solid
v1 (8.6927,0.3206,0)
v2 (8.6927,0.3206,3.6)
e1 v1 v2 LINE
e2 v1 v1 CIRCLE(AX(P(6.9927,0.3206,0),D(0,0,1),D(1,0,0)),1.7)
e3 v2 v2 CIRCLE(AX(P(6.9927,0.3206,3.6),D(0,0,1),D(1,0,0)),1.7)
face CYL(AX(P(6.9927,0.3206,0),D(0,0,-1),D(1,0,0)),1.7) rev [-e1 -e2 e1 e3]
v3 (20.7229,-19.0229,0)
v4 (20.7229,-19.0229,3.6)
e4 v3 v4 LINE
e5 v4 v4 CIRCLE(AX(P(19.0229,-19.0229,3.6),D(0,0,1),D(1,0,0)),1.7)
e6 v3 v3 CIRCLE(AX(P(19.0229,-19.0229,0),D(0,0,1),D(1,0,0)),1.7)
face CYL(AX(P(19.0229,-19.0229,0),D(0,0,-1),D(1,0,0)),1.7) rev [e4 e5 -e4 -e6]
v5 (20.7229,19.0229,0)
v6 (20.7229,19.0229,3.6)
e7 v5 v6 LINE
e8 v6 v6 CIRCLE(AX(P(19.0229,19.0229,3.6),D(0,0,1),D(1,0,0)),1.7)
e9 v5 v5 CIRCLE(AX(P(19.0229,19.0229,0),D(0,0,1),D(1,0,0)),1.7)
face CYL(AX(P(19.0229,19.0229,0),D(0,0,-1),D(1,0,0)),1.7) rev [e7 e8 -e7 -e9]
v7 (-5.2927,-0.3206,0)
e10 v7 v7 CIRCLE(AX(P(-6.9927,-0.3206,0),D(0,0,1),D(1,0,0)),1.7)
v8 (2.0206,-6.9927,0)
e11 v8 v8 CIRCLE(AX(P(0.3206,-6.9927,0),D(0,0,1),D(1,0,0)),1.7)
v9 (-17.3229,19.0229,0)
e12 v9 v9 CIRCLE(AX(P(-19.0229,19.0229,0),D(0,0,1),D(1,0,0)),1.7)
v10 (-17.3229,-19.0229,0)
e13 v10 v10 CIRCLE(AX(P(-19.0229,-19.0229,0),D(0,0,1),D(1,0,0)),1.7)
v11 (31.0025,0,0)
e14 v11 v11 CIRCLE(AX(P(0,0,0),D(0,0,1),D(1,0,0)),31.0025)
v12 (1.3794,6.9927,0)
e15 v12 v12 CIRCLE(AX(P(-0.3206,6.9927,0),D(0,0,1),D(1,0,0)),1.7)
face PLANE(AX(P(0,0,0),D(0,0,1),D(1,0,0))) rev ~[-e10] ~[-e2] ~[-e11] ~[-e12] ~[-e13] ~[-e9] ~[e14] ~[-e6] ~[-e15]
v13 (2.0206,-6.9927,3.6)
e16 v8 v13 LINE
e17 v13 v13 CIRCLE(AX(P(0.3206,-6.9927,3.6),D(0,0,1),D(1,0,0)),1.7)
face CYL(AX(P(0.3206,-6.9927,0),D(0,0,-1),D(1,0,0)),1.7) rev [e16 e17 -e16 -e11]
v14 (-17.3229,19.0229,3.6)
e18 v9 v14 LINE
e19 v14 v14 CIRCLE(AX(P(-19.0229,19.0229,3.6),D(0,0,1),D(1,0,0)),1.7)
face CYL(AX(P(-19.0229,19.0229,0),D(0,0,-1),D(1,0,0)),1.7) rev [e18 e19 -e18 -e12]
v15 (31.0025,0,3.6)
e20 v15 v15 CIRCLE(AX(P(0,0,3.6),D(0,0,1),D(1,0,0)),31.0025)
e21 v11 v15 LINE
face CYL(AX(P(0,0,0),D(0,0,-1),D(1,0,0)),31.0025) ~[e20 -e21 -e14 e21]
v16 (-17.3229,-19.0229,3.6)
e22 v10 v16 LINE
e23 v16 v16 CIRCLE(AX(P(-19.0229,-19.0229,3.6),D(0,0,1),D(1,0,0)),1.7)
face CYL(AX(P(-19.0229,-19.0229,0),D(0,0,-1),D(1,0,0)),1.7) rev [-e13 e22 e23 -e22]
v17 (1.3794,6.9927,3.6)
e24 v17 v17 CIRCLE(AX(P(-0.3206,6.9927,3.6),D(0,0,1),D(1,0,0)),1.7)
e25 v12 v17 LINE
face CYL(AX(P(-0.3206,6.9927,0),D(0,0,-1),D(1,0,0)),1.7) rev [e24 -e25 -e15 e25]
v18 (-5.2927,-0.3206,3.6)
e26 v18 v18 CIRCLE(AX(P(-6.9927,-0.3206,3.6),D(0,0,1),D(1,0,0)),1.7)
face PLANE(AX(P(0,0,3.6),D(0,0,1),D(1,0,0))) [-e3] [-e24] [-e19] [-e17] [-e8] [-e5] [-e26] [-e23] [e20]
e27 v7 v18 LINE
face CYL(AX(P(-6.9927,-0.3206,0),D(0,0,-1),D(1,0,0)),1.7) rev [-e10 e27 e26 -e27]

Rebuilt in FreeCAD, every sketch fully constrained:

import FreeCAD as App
import Part
import Sketcher
from FreeCAD import Vector

doc = App.newDocument("Part")
params = doc.addObject("Spreadsheet::Sheet", "Params")
for row, (alias, value) in enumerate([
    ("sketch1_diameter", "3.4 mm"),
    ("pad1_length", "3.6 mm"),
], start=1):
    params.set(f"A{row}", alias)
    params.set(f"B{row}", "=" + value)
    params.setAlias(f"B{row}", alias)

body = doc.addObject("PartDesign::Body", "Body")

# Sketch on XY plane
sketch1 = doc.addObject("Sketcher::SketchObject", "Sketch")
body.addObject(sketch1)
sketch1.AttachmentSupport = (doc.XY_Plane, [""])
sketch1.MapMode = "FlatFace"
sketch1.addGeometry([
    Part.Circle(Vector(0, 0, 0), Vector(0, 0, 1), 31),  # 0
    Part.Circle(Vector(-19, -19, 0), Vector(0, 0, 1), 1.7),  # 1
    Part.Circle(Vector(-7, -0.3, 0), Vector(0, 0, 1), 1.7),  # 2
    Part.Circle(Vector(19, -19, 0), Vector(0, 0, 1), 1.7),  # 3
    Part.Circle(Vector(0.3, -7, 0), Vector(0, 0, 1), 1.7),  # 4
    Part.Circle(Vector(-0.3, 7, 0), Vector(0, 0, 1), 1.7),  # 5
    Part.Circle(Vector(-19, 19, 0), Vector(0, 0, 1), 1.7),  # 6
    Part.Circle(Vector(7, 0.3, 0), Vector(0, 0, 1), 1.7),  # 7
    Part.Circle(Vector(19, 19, 0), Vector(0, 0, 1), 1.7),  # 8
], False)
sketch1.addConstraint([
    Sketcher.Constraint("Coincident", 0, 3, -1, 1),
    Sketcher.Constraint("Equal", 1, 2),
    Sketcher.Constraint("Equal", 2, 3),
    Sketcher.Constraint("Equal", 3, 4),
    Sketcher.Constraint("Equal", 4, 5),
    Sketcher.Constraint("Equal", 5, 6),
    Sketcher.Constraint("Equal", 6, 7),
    Sketcher.Constraint("Equal", 7, 8),
    Sketcher.Constraint("Symmetric", 4, 3, 5, 3, -1, 1),
    Sketcher.Constraint("Symmetric", 3, 3, 6, 3, -1, 1),
    Sketcher.Constraint("Symmetric", 2, 3, 7, 3, -1, 1),
    Sketcher.Constraint("Symmetric", 1, 3, 8, 3, -1, 1),
    Sketcher.Constraint("Symmetric", 1, 3, 3, 3, -2),
    Sketcher.Constraint("Diameter", 1, 3.4),
    Sketcher.Constraint("Diameter", 0, 62.005),
    Sketcher.Constraint("DistanceX", 1, 3, -1, 1, 19.023),
    Sketcher.Constraint("DistanceY", 1, 3, -1, 1, 19.023),
    Sketcher.Constraint("DistanceY", 4, 3, 2, 3, 6.672),
    Sketcher.Constraint("DistanceX", 2, 3, 5, 3, 6.672),
    Sketcher.Constraint("DistanceX", 2, 3, -1, 1, 6.9927),
    Sketcher.Constraint("DistanceY", 2, 3, -1, 1, 0.3206),
])
sketch1.setExpression("Constraints[13]", "Params.sketch1_diameter")
pad1 = doc.addObject("PartDesign::Pad", "Pad")
body.addObject(pad1)
pad1.Profile = sketch1
pad1.setExpression("Length", "Params.pad1_length")

doc.recompute()
